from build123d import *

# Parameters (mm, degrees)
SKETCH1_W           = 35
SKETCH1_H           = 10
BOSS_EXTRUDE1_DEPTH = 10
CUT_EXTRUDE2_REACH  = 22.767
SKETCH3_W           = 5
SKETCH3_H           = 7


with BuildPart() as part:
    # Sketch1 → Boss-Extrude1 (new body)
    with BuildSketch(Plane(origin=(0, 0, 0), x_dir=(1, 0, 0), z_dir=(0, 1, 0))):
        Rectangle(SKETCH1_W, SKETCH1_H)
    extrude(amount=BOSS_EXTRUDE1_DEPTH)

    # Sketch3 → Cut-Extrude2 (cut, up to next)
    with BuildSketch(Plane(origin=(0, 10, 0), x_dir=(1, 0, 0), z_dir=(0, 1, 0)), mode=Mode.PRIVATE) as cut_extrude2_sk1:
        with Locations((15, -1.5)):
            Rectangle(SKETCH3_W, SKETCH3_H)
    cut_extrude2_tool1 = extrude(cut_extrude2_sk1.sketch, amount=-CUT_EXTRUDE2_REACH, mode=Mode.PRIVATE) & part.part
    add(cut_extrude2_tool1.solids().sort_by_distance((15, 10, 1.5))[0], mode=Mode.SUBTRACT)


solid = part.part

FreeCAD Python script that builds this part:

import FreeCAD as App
import Part
import Sketcher

V = App.Vector

doc = App.newDocument("Part")
body = doc.addObject("PartDesign::Body", "Body")

# Sketch on XZ plane
sketch1 = body.newObject("Sketcher::SketchObject", "Sketch")
sketch1.AttachmentSupport = (doc.getObject("XZ_Plane"), [""])
sketch1.MapMode = "FlatFace"
sketch1.addGeometry(Part.LineSegment(V(-18, -5, 0), V(-18, 5, 0)), False)
sketch1.addGeometry(Part.LineSegment(V(-18, 5, 0), V(18, 5, 0)), False)
sketch1.addGeometry(Part.LineSegment(V(18, 5, 0), V(18, -5, 0)), False)
sketch1.addGeometry(Part.LineSegment(V(18, -5, 0), V(-18, -5, 0)), False)
sketch1.addConstraint(Sketcher.Constraint("Coincident", 0, 2, 1, 1))
sketch1.addConstraint(Sketcher.Constraint("Coincident", 1, 2, 2, 1))
sketch1.addConstraint(Sketcher.Constraint("Coincident", 2, 2, 3, 1))
sketch1.addConstraint(Sketcher.Constraint("Coincident", 3, 2, 0, 1))
sketch1.addConstraint(Sketcher.Constraint("Vertical", 0))
sketch1.addConstraint(Sketcher.Constraint("Horizontal", 1))
sketch1.addConstraint(Sketcher.Constraint("Vertical", 2))
sketch1.addConstraint(Sketcher.Constraint("Horizontal", 3))
sketch1.addConstraint(Sketcher.Constraint("Symmetric", 0, 2, 2, 2, -1, 1))
sketch1.addConstraint(Sketcher.Constraint("DistanceX", 1, 1, 1, 2, 35.0))
sketch1.addConstraint(Sketcher.Constraint("DistanceY", 0, 1, 0, 2, 10.0))
pad1 = body.newObject("PartDesign::Pad", "Pad")
pad1.Profile = sketch1
pad1.Length = 10
pad1.Reversed = True

# Sketch on XZ plane
sketch2 = body.newObject("Sketcher::SketchObject", "Sketch001")
sketch2.AttachmentSupport = (doc.getObject("XZ_Plane"), [""])
sketch2.MapMode = "FlatFace"
sketch2.AttachmentOffset = App.Placement(V(0, 0, -10), App.Rotation())
sketch2.addGeometry(Part.LineSegment(V(12, -2, 0), V(12, 5, 0)), False)
sketch2.addGeometry(Part.LineSegment(V(12, 5, 0), V(18, 5, 0)), False)
sketch2.addGeometry(Part.LineSegment(V(18, 5, 0), V(18, -2, 0)), False)
sketch2.addGeometry(Part.LineSegment(V(18, -2, 0), V(12, -2, 0)), False)
sketch2.addConstraint(Sketcher.Constraint("Coincident", 0, 2, 1, 1))
sketch2.addConstraint(Sketcher.Constraint("Coincident", 1, 2, 2, 1))
sketch2.addConstraint(Sketcher.Constraint("Coincident", 2, 2, 3, 1))
sketch2.addConstraint(Sketcher.Constraint("Coincident", 3, 2, 0, 1))
sketch2.addConstraint(Sketcher.Constraint("Vertical", 0))
sketch2.addConstraint(Sketcher.Constraint("Horizontal", 1))
sketch2.addConstraint(Sketcher.Constraint("Vertical", 2))
sketch2.addConstraint(Sketcher.Constraint("Horizontal", 3))
sketch2.addConstraint(Sketcher.Constraint("DistanceX", 1, 1, 1, 2, 5.0))
sketch2.addConstraint(Sketcher.Constraint("DistanceY", 0, 1, 0, 2, 7.0))
sketch2.addConstraint(Sketcher.Constraint("DistanceY", -1, 1, 0, 2, 5.0))
sketch2.addConstraint(Sketcher.Constraint("DistanceX", -1, 1, 0, 2, 12.5))
pocket1 = body.newObject("PartDesign::Pocket", "Pocket")
pocket1.Profile = sketch2
pocket1.Type = "UpToFirst"
pocket1.Reversed = True

doc.recompute()
